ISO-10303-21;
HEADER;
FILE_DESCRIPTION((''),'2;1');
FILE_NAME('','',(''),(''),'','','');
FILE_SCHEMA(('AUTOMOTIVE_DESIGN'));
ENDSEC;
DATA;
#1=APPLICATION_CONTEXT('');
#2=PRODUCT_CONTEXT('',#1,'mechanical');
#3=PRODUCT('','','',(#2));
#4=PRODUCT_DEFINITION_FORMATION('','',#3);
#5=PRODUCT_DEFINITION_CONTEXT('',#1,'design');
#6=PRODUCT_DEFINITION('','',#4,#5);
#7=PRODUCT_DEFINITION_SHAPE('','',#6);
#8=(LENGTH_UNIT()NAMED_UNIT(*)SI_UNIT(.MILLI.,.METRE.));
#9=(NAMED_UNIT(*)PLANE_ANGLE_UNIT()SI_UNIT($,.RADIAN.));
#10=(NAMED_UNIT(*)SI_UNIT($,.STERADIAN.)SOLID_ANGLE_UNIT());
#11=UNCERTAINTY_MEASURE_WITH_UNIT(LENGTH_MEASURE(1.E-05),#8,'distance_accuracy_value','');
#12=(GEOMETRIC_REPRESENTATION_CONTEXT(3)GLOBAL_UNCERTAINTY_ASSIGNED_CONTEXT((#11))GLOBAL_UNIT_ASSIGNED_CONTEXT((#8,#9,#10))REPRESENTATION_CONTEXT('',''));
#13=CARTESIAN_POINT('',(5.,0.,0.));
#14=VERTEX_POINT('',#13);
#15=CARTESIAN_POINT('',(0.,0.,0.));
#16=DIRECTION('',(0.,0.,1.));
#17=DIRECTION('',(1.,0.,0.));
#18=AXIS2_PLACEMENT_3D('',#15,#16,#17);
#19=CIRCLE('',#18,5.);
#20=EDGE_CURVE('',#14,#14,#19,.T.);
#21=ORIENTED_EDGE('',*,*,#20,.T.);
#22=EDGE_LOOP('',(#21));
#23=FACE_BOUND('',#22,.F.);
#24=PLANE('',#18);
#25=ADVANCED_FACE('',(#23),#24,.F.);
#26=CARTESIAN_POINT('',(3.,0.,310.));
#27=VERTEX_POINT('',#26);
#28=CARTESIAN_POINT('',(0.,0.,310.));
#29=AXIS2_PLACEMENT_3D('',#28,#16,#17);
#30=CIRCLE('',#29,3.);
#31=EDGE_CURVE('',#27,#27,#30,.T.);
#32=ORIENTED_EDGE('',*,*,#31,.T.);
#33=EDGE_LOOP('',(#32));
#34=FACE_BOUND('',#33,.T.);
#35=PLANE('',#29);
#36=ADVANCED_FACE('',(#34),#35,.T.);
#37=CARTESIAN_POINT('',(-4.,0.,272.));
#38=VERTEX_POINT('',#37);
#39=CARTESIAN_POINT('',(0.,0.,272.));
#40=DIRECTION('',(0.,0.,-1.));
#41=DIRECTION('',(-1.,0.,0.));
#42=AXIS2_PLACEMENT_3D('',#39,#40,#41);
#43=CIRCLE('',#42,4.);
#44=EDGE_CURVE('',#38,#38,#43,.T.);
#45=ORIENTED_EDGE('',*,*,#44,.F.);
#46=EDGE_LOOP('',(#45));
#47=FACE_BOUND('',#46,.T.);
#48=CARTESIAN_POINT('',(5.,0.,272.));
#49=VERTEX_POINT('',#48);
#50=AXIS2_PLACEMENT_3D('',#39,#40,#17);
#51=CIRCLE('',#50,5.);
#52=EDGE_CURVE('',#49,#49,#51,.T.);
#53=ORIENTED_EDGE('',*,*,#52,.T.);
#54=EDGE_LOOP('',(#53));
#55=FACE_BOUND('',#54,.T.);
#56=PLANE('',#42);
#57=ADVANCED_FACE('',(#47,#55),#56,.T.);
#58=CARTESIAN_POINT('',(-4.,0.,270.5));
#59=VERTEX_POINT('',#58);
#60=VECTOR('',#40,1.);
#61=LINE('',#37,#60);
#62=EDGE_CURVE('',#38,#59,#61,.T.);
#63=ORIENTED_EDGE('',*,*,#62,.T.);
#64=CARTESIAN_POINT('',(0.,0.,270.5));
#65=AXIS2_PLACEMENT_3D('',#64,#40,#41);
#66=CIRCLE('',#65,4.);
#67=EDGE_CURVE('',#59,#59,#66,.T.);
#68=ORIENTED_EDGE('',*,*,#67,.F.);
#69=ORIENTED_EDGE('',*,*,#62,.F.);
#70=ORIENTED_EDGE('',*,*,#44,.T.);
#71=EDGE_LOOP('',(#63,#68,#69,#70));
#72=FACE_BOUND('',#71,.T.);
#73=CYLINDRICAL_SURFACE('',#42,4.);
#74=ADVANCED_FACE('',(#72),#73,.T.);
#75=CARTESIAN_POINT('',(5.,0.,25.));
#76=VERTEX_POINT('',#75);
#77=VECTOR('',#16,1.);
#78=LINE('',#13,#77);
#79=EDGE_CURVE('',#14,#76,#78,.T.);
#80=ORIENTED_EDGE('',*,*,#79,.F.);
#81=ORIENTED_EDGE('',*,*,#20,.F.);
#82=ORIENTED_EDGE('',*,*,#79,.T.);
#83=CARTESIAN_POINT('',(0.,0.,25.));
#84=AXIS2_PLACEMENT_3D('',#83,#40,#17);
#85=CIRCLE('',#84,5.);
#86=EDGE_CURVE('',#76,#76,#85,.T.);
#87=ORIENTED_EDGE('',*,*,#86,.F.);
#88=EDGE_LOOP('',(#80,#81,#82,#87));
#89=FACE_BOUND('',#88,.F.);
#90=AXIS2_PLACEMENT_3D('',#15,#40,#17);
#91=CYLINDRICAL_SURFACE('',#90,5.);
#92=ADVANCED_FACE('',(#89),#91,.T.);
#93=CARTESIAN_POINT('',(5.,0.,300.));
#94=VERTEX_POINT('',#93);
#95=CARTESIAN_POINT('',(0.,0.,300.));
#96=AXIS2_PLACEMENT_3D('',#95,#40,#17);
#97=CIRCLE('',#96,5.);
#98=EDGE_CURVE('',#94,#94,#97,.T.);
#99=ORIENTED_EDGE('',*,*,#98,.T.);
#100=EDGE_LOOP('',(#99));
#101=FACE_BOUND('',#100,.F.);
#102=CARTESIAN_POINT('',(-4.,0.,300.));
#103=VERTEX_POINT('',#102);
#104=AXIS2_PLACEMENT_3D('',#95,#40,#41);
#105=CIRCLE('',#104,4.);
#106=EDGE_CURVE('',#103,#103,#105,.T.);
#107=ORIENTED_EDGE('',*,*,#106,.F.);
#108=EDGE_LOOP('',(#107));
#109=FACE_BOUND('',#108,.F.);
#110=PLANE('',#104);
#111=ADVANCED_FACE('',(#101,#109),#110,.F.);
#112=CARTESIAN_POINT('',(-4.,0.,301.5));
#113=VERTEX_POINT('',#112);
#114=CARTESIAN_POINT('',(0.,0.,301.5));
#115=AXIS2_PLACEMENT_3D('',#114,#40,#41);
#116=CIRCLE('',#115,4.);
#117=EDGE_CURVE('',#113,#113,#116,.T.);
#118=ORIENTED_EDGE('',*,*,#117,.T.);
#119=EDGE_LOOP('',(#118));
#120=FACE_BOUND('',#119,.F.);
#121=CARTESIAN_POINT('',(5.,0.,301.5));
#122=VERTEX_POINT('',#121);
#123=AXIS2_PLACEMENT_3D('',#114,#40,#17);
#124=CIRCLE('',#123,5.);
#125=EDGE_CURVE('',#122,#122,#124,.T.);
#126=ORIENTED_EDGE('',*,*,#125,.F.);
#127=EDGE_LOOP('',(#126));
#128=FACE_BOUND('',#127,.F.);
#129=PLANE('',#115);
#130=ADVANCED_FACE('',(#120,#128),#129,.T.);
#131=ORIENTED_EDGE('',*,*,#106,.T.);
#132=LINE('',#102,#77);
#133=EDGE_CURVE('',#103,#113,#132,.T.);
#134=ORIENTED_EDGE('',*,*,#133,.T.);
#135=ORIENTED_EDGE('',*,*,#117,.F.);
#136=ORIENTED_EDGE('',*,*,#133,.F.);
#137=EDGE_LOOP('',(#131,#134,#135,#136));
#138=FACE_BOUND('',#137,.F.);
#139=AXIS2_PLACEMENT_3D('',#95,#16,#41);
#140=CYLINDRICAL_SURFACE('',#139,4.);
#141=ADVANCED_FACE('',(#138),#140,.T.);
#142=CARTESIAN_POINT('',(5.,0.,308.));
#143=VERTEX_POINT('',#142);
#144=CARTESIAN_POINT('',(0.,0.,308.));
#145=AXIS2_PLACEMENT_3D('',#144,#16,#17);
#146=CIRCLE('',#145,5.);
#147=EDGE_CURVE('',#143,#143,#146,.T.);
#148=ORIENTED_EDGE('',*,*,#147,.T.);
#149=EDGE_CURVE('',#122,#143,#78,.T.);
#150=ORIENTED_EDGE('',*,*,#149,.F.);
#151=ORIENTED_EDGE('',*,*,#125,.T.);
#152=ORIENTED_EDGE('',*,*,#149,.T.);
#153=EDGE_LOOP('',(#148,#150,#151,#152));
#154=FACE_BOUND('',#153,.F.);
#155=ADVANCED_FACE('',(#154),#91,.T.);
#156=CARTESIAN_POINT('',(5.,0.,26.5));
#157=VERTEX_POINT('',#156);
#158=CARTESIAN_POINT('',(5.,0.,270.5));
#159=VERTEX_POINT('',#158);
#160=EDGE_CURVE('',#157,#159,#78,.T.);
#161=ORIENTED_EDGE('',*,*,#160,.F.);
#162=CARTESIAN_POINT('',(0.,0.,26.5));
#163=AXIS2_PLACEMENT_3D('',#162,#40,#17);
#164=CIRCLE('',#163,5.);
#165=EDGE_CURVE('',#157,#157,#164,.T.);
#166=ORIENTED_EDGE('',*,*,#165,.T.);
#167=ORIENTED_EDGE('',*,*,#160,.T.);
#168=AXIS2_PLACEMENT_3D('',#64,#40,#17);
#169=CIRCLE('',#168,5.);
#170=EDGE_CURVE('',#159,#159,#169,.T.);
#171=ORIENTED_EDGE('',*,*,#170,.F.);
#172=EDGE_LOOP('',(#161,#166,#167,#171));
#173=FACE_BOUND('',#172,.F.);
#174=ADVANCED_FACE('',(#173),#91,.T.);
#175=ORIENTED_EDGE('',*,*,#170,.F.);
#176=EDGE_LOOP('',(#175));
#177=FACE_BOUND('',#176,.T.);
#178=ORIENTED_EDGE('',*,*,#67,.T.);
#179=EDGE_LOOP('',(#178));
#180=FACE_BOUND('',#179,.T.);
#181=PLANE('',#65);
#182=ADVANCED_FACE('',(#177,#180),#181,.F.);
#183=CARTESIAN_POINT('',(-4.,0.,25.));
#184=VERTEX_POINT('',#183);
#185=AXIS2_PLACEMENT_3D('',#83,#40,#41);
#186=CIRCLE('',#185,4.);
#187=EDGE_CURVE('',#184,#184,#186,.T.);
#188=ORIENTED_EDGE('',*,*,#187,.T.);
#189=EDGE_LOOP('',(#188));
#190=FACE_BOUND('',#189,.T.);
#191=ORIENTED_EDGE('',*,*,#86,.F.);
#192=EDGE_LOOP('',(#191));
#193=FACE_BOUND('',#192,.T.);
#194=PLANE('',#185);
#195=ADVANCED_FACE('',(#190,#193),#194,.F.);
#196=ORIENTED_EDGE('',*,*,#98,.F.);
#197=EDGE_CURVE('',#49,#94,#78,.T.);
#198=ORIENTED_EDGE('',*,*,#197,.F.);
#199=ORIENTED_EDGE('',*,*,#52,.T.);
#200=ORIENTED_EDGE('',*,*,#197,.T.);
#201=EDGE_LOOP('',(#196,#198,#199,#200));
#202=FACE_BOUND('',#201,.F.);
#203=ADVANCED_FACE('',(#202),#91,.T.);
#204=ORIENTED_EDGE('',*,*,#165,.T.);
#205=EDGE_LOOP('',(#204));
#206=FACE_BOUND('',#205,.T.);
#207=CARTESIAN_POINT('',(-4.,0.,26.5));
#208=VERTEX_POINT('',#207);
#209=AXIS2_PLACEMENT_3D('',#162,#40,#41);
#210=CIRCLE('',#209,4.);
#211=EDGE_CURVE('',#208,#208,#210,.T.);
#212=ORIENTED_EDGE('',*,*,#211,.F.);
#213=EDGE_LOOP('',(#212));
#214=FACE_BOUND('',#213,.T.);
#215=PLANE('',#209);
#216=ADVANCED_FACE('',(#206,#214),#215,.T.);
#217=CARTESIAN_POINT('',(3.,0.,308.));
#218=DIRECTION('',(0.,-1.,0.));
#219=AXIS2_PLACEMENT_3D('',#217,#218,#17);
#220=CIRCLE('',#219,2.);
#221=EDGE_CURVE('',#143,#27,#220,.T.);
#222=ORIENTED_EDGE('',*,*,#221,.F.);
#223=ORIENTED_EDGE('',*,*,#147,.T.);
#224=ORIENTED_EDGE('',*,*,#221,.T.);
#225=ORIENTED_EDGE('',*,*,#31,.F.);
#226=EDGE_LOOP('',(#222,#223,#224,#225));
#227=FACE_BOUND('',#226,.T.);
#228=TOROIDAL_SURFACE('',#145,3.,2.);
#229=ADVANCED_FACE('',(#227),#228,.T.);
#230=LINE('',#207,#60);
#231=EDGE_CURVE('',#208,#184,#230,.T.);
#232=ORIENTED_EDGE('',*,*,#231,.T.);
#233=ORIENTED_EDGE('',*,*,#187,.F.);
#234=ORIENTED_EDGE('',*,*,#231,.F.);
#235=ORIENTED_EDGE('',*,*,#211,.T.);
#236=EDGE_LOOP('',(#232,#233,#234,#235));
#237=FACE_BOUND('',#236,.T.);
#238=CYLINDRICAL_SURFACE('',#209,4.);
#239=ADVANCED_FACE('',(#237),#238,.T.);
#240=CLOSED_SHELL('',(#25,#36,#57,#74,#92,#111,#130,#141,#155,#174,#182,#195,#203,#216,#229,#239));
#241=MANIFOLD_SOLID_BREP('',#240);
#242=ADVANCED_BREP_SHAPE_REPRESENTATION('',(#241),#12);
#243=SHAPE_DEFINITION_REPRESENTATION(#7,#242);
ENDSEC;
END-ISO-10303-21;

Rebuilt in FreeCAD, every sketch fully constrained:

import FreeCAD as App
import Part
import Sketcher
from FreeCAD import Vector
Q = App.Units.Quantity


def edges_at(feature, points):
    """Names of the edges that pass closest to the given points."""
    edges = feature.Shape.Edges
    near = lambda p: min(range(len(edges)), key=lambda i: edges[i].distToShape(Part.Vertex(*p))[0])
    return sorted({f"Edge{near(p) + 1}" for p in points})


def add_polygon(sketch, points):
    """Adds a closed chain of lines whose ends are joined by coincident constraints."""
    first, n = sketch.GeometryCount, len(points)
    for a, b in zip(points, points[1:] + points[:1]):
        sketch.addGeometry(Part.LineSegment(App.Vector(*a, 0), App.Vector(*b, 0)), False)
    for i in range(n):
        sketch.addConstraint(Sketcher.Constraint("Coincident", first + i, 2, first + (i + 1) % n, 1))

doc = App.newDocument("Part")
body = doc.addObject("PartDesign::Body", "Body")

# Sketch on XY plane
sketch1 = body.newObject("Sketcher::SketchObject", "Sketch")
sketch1.AttachmentSupport = (doc.getObject("XY_Plane"), [""])
sketch1.MapMode = "FlatFace"
sketch1.addGeometry(Part.Circle(Vector(0, 0, 0), Vector(0, 0, 1), 5), False)
sketch1.addConstraint([
    Sketcher.Constraint("Coincident", 0, 3, -1, 1),
    Sketcher.Constraint("Diameter", 0, Q("10 mm")),
])
pad1 = body.newObject("PartDesign::Pad", "Pad")
pad1.Profile = sketch1
pad1.Length = 310
doc.recompute()

fillet = body.newObject("PartDesign::Fillet", "Fillet")
fillet.Base = (pad1, edges_at(pad1, [(-5, 0, 310)]))
fillet.Radius = 2

# Sketch on XZ plane
sketch2 = body.newObject("Sketcher::SketchObject", "Sketch001")
sketch2.AttachmentSupport = (doc.getObject("XZ_Plane"), [""])
sketch2.MapMode = "FlatFace"
add_polygon(sketch2, [(-4, 25), (-5, 25), (-5, 26.5), (-4, 26.5)])  # lines 0-3
add_polygon(sketch2, [(-4, 300), (-5, 300), (-5, 301.5), (-4, 301.5)])  # lines 4-7
add_polygon(sketch2, [(-4, 270.5), (-5, 270.5), (-5, 272), (-4, 272)])  # lines 8-11
sketch2.addConstraint([
    Sketcher.Constraint("Horizontal", 0),
    Sketcher.Constraint("Vertical", 1),
    Sketcher.Constraint("Horizontal", 2),
    Sketcher.Constraint("Vertical", 3),
    Sketcher.Constraint("Horizontal", 4),
    Sketcher.Constraint("Vertical", 5),
    Sketcher.Constraint("Horizontal", 6),
    Sketcher.Constraint("Vertical", 7),
    Sketcher.Constraint("Horizontal", 8),
    Sketcher.Constraint("Vertical", 9),
    Sketcher.Constraint("Horizontal", 10),
    Sketcher.Constraint("Vertical", 11),
    Sketcher.Constraint("Vertical", 1, 2, 4, 2),
    Sketcher.Constraint("Vertical", 3, 2, 6, 2),
    Sketcher.Constraint("Vertical", 5, 2, 8, 2),
    Sketcher.Constraint("Vertical", 7, 2, 10, 2),
    Sketcher.Constraint("Equal", 3, 5),
    Sketcher.Constraint("Equal", 7, 9),
    Sketcher.Constraint("DistanceX", 0, 2, 0, 1, Q("1 mm")),
    Sketcher.Constraint("DistanceY", 1, 1, 1, 2, Q("1.5 mm")),
    Sketcher.Constraint("DistanceY", -1, 1, 0, 2, Q("25 mm")),
    Sketcher.Constraint("DistanceX", 0, 2, -1, 1, Q("5 mm")),
    Sketcher.Constraint("DistanceY", -1, 1, 4, 2, Q("300 mm")),
    Sketcher.Constraint("DistanceY", -1, 1, 9, 2, Q("272 mm")),
])
groove = body.newObject("PartDesign::Groove", "Groove")
groove.Profile = sketch2
groove.ReferenceAxis = (sketch2, ["V_Axis"])
groove.Angle = 360

doc.recompute()
